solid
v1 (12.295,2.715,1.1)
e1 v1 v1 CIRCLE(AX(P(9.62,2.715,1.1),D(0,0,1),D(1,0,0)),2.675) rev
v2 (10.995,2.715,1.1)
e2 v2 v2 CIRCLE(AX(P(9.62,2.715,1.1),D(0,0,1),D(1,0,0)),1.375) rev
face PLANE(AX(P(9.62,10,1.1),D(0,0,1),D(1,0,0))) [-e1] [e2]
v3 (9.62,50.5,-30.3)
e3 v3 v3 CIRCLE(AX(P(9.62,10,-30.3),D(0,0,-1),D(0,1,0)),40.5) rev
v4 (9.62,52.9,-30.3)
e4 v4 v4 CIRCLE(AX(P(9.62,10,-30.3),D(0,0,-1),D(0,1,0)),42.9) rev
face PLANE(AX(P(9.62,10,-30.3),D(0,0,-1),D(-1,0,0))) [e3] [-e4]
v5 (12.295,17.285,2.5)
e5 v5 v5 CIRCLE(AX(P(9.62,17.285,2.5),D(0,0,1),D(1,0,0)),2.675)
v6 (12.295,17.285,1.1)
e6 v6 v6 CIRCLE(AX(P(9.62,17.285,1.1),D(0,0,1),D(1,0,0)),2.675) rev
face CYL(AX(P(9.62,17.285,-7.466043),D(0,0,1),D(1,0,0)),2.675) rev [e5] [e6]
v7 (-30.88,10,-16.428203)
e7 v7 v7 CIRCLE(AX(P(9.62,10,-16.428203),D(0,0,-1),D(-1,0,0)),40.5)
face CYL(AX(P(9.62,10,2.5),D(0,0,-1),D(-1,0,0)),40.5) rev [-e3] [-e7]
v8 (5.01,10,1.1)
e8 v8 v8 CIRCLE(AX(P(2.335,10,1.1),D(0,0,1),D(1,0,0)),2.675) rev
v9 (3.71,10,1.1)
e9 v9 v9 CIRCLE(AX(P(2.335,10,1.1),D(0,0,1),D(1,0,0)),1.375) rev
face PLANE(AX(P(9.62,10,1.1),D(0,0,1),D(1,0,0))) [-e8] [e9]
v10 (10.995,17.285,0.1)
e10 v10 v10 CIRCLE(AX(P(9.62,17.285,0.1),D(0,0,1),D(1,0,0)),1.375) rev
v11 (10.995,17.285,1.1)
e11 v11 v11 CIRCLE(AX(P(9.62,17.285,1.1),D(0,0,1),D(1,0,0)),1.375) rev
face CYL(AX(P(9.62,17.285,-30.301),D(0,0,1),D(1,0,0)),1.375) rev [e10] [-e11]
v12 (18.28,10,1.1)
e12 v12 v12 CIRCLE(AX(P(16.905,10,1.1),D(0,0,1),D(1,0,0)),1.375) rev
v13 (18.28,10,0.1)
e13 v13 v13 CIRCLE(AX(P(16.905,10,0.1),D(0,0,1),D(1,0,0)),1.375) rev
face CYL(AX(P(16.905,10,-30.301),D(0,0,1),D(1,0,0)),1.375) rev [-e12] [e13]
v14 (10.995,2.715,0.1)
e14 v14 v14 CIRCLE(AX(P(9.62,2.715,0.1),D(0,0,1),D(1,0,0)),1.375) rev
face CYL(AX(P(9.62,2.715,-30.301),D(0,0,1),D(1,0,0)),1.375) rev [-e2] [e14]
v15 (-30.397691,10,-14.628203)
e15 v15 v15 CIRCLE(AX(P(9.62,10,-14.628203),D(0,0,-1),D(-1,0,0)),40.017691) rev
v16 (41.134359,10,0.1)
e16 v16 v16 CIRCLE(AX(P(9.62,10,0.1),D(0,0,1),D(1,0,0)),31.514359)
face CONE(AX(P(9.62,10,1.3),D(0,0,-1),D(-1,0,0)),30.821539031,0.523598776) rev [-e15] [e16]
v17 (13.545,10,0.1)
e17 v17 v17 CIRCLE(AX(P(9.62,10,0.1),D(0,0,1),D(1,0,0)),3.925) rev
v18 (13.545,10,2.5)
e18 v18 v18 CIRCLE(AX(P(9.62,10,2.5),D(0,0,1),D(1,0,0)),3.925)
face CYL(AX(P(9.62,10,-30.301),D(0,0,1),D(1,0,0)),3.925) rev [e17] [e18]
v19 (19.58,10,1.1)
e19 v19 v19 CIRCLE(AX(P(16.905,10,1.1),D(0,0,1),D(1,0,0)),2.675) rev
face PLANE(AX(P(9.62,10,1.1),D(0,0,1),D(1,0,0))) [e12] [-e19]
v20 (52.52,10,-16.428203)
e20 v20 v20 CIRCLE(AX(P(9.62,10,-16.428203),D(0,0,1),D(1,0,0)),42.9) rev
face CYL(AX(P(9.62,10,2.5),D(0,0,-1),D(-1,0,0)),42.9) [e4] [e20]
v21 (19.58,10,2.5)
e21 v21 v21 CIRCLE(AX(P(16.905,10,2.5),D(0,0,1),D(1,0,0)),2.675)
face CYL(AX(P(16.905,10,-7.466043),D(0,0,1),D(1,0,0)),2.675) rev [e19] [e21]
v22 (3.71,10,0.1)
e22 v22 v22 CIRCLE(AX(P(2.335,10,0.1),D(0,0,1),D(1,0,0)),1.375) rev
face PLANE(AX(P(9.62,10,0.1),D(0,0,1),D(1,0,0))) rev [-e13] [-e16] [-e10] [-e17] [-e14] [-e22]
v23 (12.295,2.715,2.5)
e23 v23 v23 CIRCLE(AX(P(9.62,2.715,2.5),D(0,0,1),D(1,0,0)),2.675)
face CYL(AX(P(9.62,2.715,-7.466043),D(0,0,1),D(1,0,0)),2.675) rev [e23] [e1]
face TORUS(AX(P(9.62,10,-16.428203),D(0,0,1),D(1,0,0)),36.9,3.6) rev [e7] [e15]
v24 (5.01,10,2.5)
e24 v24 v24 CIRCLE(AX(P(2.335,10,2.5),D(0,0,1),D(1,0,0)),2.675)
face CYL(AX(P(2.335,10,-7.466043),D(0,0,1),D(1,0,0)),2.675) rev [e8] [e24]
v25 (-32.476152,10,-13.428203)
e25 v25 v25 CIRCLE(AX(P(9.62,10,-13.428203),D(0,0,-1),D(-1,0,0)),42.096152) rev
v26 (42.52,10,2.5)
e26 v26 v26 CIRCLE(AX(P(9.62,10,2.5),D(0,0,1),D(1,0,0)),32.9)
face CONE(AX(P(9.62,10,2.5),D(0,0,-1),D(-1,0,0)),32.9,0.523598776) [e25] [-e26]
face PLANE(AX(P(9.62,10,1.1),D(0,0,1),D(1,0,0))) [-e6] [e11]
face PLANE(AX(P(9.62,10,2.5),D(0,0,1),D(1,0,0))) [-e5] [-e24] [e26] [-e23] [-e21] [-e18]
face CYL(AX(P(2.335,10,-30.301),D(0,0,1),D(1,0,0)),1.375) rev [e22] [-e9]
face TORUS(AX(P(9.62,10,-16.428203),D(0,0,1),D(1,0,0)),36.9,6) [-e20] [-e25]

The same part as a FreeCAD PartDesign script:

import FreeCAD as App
import Part
import Sketcher
Q = App.Units.Quantity


def edges_at(feature, points):
    """Names of the edges that pass closest to the given points."""
    edges = feature.Shape.Edges
    near = lambda p: min(range(len(edges)), key=lambda i: edges[i].distToShape(Part.Vertex(*p))[0])
    return sorted({f"Edge{near(p) + 1}" for p in points})


def faces_at(feature, points):
    """Names of the faces that lie closest to the given points."""
    faces = feature.Shape.Faces
    near = lambda p: min(range(len(faces)), key=lambda i: faces[i].distToShape(Part.Vertex(*p))[0])
    return sorted({f"Face{near(p) + 1}" for p in points})

doc = App.newDocument("Part")
params = doc.addObject("Spreadsheet::Sheet", "Params")
for row, (alias, value) in enumerate([
    ("sketch1_diameter", "85.8 mm"),
    ("pad1_length", "2.5 mm"),
    ("pad1_length2", "30.3 mm"),
    ("chamfer_size", "10 mm"),
    ("chamfer_size2", "17.320508 mm"),
    ("fillet_radius", "6 mm"),
    ("thickness_wall", "2.4 mm"),
    ("sketch2_diameter", "7.85 mm"),
    ("sketch3_diameter", "2.75 mm"),
    ("sketch4_diameter", "2.75 mm"),
    ("sketch5_diameter", "2.75 mm"),
    ("sketch6_diameter", "2.75 mm"),
    ("sketch7_diameter", "5.35 mm"),
    ("pocket6_length", "1.4 mm"),
], start=1):
    params.set(f"A{row}", alias)
    params.set(f"B{row}", "=" + value)
    params.setAlias(f"B{row}", alias)

body = doc.addObject("PartDesign::Body", "Body")

# Sketch on XY plane
sketch1 = body.newObject("Sketcher::SketchObject", "Sketch")
sketch1.AttachmentSupport = (doc.getObject("XY_Plane"), [""])
sketch1.MapMode = "FlatFace"
sketch1.addGeometry(Part.Circle(App.Vector(10, 10, 0), App.Vector(0, 0, 1), 43), False)
sketch1.addConstraint(Sketcher.Constraint("Diameter", 0, Q("85.8 mm")))
sketch1.addConstraint(Sketcher.Constraint("DistanceY", -1, 1, 0, 3, Q("10 mm")))
sketch1.addConstraint(Sketcher.Constraint("DistanceX", -1, 1, 0, 3, Q("9.62 mm")))
sketch1.setExpression("Constraints[0]", "Params.sketch1_diameter")
pad1 = body.newObject("PartDesign::Pad", "Pad")
pad1.Profile = sketch1
pad1.Type = "TwoLengths"
pad1.setExpression("Length", "Params.pad1_length")
pad1.setExpression("Length2", "Params.pad1_length2")
doc.recompute()

chamfer = body.newObject("PartDesign::Chamfer", "Chamfer")
chamfer.Base = (pad1, edges_at(pad1, [(9.62, -32.9, 2.5)]))
chamfer.ChamferType = "Two distances"
chamfer.setExpression("Size", "Params.chamfer_size")
chamfer.setExpression("Size2", "Params.chamfer_size2")
chamfer.FlipDirection = True
doc.recompute()

fillet = body.newObject("PartDesign::Fillet", "Fillet")
fillet.Base = (chamfer, edges_at(chamfer, [(9.62, -32.9, -14.821)]))
fillet.setExpression("Radius", "Params.fillet_radius")
doc.recompute()

thickness = body.newObject("PartDesign::Thickness", "Thickness")
thickness.Base = (fillet, faces_at(fillet, [(9.62, 10, -30.3)]))
thickness.setExpression("Value", "Params.thickness_wall")
thickness.Reversed = True
thickness.Join = "Intersection"

# Sketch on XY plane
sketch2 = body.newObject("Sketcher::SketchObject", "Sketch001")
sketch2.AttachmentSupport = (doc.getObject("XY_Plane"), [""])
sketch2.MapMode = "FlatFace"
sketch2.AttachmentOffset = App.Placement(App.Vector(0, 0, 2.5), App.Rotation())
sketch2.addGeometry(Part.Circle(App.Vector(9.6, 10, 0), App.Vector(0, 0, 1), 3.9), False)
sketch2.addConstraint(Sketcher.Constraint("Diameter", 0, Q("7.85 mm")))
sketch2.addConstraint(Sketcher.Constraint("DistanceY", -1, 1, 0, 3, Q("10 mm")))
sketch2.addConstraint(Sketcher.Constraint("DistanceX", -1, 1, 0, 3, Q("9.62 mm")))
sketch2.setExpression("Constraints[0]", "Params.sketch2_diameter")
pocket1 = body.newObject("PartDesign::Pocket", "Pocket")
pocket1.Profile = sketch2
pocket1.Type = "UpToFirst"

# Sketch on XY plane
sketch3 = body.newObject("Sketcher::SketchObject", "Sketch002")
sketch3.AttachmentSupport = (doc.getObject("XY_Plane"), [""])
sketch3.MapMode = "FlatFace"
sketch3.AttachmentOffset = App.Placement(App.Vector(0, 0, 2.5), App.Rotation())
sketch3.addGeometry(Part.Circle(App.Vector(9.6, 17.3, 0), App.Vector(0, 0, 1), 1.4), False)
sketch3.addConstraint(Sketcher.Constraint("Diameter", 0, Q("2.75 mm")))
sketch3.addConstraint(Sketcher.Constraint("DistanceX", -1, 1, 0, 3, Q("9.62 mm")))
sketch3.addConstraint(Sketcher.Constraint("DistanceY", -1, 1, 0, 3, Q("17.285 mm")))
sketch3.setExpression("Constraints[0]", "Params.sketch3_diameter")
pocket2 = body.newObject("PartDesign::Pocket", "Pocket001")
pocket2.Profile = sketch3
pocket2.Type = "UpToFirst"

# Sketch on XY plane
sketch4 = body.newObject("Sketcher::SketchObject", "Sketch003")
sketch4.AttachmentSupport = (doc.getObject("XY_Plane"), [""])
sketch4.MapMode = "FlatFace"
sketch4.AttachmentOffset = App.Placement(App.Vector(0, 0, 2.5), App.Rotation())
sketch4.addGeometry(Part.Circle(App.Vector(9.6, 2.7, 0), App.Vector(0, 0, 1), 1.4), False)
sketch4.addConstraint(Sketcher.Constraint("Diameter", 0, Q("2.75 mm")))
sketch4.addConstraint(Sketcher.Constraint("DistanceX", -1, 1, 0, 3, Q("9.62 mm")))
sketch4.addConstraint(Sketcher.Constraint("DistanceY", -1, 1, 0, 3, Q("2.715 mm")))
sketch4.setExpression("Constraints[0]", "Params.sketch4_diameter")
pocket3 = body.newObject("PartDesign::Pocket", "Pocket002")
pocket3.Profile = sketch4
pocket3.Type = "UpToFirst"

# Sketch on XY plane
sketch5 = body.newObject("Sketcher::SketchObject", "Sketch004")
sketch5.AttachmentSupport = (doc.getObject("XY_Plane"), [""])
sketch5.MapMode = "FlatFace"
sketch5.AttachmentOffset = App.Placement(App.Vector(0, 0, 2.5), App.Rotation())
sketch5.addGeometry(Part.Circle(App.Vector(2.3, 10, 0), App.Vector(0, 0, 1), 1.4), False)
sketch5.addConstraint(Sketcher.Constraint("Diameter", 0, Q("2.75 mm")))
sketch5.addConstraint(Sketcher.Constraint("DistanceY", -1, 1, 0, 3, Q("10 mm")))
sketch5.addConstraint(Sketcher.Constraint("DistanceX", -1, 1, 0, 3, Q("2.335 mm")))
sketch5.setExpression("Constraints[0]", "Params.sketch5_diameter")
pocket4 = body.newObject("PartDesign::Pocket", "Pocket003")
pocket4.Profile = sketch5
pocket4.Type = "UpToFirst"

# Sketch on XY plane
sketch6 = body.newObject("Sketcher::SketchObject", "Sketch005")
sketch6.AttachmentSupport = (doc.getObject("XY_Plane"), [""])
sketch6.MapMode = "FlatFace"
sketch6.AttachmentOffset = App.Placement(App.Vector(0, 0, 2.5), App.Rotation())
sketch6.addGeometry(Part.Circle(App.Vector(16.9, 10, 0), App.Vector(0, 0, 1), 1.4), False)
sketch6.addConstraint(Sketcher.Constraint("Diameter", 0, Q("2.75 mm")))
sketch6.addConstraint(Sketcher.Constraint("DistanceY", -1, 1, 0, 3, Q("10 mm")))
sketch6.addConstraint(Sketcher.Constraint("DistanceX", -1, 1, 0, 3, Q("16.905 mm")))
sketch6.setExpression("Constraints[0]", "Params.sketch6_diameter")
pocket5 = body.newObject("PartDesign::Pocket", "Pocket004")
pocket5.Profile = sketch6
pocket5.Type = "UpToFirst"

# Sketch on XY plane
sketch7 = body.newObject("Sketcher::SketchObject", "Sketch006")
sketch7.AttachmentSupport = (doc.getObject("XY_Plane"), [""])
sketch7.MapMode = "FlatFace"
sketch7.AttachmentOffset = App.Placement(App.Vector(0, 0, 2.5), App.Rotation())
sketch7.addGeometry(Part.Circle(App.Vector(2.3, 10, 0), App.Vector(0, 0, 1), 2.7), False)
sketch7.addGeometry(Part.Circle(App.Vector(9.6, 2.7, 0), App.Vector(0, 0, 1), 2.7), False)
sketch7.addGeometry(Part.Circle(App.Vector(9.6, 17.3, 0), App.Vector(0, 0, 1), 2.7), False)
sketch7.addGeometry(Part.Circle(App.Vector(16.9, 10, 0), App.Vector(0, 0, 1), 2.7), False)
sketch7.addConstraint(Sketcher.Constraint("Equal", 0, 1))
sketch7.addConstraint(Sketcher.Constraint("Equal", 1, 2))
sketch7.addConstraint(Sketcher.Constraint("Equal", 2, 3))
sketch7.addConstraint(Sketcher.Constraint("Horizontal", 0, 3, 3, 3))
sketch7.addConstraint(Sketcher.Constraint("Vertical", 1, 3, 2, 3))
sketch7.addConstraint(Sketcher.Constraint("Diameter", 0, Q("5.35 mm")))
sketch7.addConstraint(Sketcher.Constraint("DistanceY", -1, 1, 0, 3, Q("10 mm")))
sketch7.addConstraint(Sketcher.Constraint("DistanceX", -1, 1, 1, 3, Q("9.62 mm")))
sketch7.addConstraint(Sketcher.Constraint("DistanceY", 1, 3, 2, 3, Q("14.57 mm")))
sketch7.addConstraint(Sketcher.Constraint("DistanceX", 0, 3, 3, 3, Q("14.57 mm")))
sketch7.addConstraint(Sketcher.Constraint("DistanceX", -1, 1, 0, 3, Q("2.335 mm")))
sketch7.addConstraint(Sketcher.Constraint("DistanceY", -1, 1, 1, 3, Q("2.715 mm")))
sketch7.setExpression("Constraints[5]", "Params.sketch7_diameter")
pocket6 = body.newObject("PartDesign::Pocket", "Pocket005")
pocket6.Profile = sketch7
pocket6.setExpression("Length", "Params.pocket6_length")

doc.recompute()
